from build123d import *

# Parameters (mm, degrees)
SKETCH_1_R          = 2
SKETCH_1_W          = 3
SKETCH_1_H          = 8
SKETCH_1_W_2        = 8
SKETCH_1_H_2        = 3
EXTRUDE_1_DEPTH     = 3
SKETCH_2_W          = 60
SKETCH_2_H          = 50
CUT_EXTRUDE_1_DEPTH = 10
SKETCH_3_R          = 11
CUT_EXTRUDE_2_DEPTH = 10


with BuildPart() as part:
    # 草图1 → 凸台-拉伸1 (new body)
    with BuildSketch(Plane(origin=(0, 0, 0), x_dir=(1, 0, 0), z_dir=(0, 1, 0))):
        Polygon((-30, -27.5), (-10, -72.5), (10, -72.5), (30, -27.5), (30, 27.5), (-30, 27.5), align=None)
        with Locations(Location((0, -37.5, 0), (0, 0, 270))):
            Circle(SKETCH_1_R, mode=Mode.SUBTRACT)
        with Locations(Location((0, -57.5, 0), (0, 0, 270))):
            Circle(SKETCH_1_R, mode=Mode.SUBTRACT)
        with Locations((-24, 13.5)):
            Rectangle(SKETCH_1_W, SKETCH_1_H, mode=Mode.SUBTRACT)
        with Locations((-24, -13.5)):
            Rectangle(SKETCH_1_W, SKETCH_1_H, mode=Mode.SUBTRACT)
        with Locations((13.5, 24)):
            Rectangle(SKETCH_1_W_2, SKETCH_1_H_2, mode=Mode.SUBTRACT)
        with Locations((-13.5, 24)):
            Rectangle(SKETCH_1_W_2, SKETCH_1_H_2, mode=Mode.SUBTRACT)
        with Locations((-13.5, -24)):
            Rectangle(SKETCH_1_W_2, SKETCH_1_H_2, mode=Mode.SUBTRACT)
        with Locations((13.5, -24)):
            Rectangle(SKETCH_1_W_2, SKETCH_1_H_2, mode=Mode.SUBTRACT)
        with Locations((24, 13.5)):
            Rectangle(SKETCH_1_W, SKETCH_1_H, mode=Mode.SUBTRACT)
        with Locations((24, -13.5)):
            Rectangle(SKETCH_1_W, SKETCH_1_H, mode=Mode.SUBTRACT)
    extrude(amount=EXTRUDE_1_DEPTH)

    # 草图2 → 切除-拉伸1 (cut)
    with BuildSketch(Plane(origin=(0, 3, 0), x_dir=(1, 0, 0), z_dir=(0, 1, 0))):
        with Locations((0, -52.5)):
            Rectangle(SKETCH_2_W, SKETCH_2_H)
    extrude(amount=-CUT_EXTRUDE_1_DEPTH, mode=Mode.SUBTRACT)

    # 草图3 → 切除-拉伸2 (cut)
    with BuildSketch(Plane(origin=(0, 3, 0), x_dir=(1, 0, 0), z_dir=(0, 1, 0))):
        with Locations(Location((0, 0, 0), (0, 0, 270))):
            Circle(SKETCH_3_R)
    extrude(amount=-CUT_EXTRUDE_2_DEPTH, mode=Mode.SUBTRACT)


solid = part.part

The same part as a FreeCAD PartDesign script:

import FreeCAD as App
import Part
import Sketcher
Q = App.Units.Quantity


def add_polygon(sketch, points):
    """Adds a closed chain of lines whose ends are joined by coincident constraints."""
    first, n = sketch.GeometryCount, len(points)
    for a, b in zip(points, points[1:] + points[:1]):
        sketch.addGeometry(Part.LineSegment(App.Vector(*a, 0), App.Vector(*b, 0)), False)
    for i in range(n):
        sketch.addConstraint(Sketcher.Constraint("Coincident", first + i, 2, first + (i + 1) % n, 1))

doc = App.newDocument("Part")
body = doc.addObject("PartDesign::Body", "Body")

sketch1 = doc.addObject("Sketcher::SketchObject", "Sketch")
body.addObject(sketch1)
sketch1.AttachmentSupport = (doc.XZ_Plane, [""])
sketch1.MapMode = "FlatFace"
add_polygon(sketch1, [(-30, 27.5), (-10, 72.5), (10, 72.5), (30, 27.5), (30, -27.5), (-30, -27.5)])
add_polygon(sketch1, [(-9.5, 25.5), (-17.5, 25.5), (-17.5, 22.5), (-9.5, 22.5)])
sketch1.addGeometry(Part.Circle(App.Vector(0, 57.5, 0), App.Vector(0, 0, 1), 2), False)
sketch1.addGeometry(Part.Circle(App.Vector(0, 37.5, 0), App.Vector(0, 0, 1), 2), False)
add_polygon(sketch1, [(17.5, 25.5), (9.5, 25.5), (9.5, 22.5), (17.5, 22.5)])
add_polygon(sketch1, [(-22.5, 17.5), (-25.5, 17.5), (-25.5, 9.5), (-22.5, 9.5)])
add_polygon(sketch1, [(-22.5, -9.5), (-25.5, -9.5), (-25.5, -17.5), (-22.5, -17.5)])
add_polygon(sketch1, [(-9.5, -22.5), (-17.5, -22.5), (-17.5, -25.5), (-9.5, -25.5)])
add_polygon(sketch1, [(25.5, 17.5), (22.5, 17.5), (22.5, 9.5), (25.5, 9.5)])
add_polygon(sketch1, [(25.5, -9.5), (22.5, -9.5), (22.5, -17.5), (25.5, -17.5)])
add_polygon(sketch1, [(17.5, -22.5), (9.5, -22.5), (9.5, -25.5), (17.5, -25.5)])
sketch1.addConstraint([
    Sketcher.Constraint("Horizontal", 1),
    Sketcher.Constraint("Vertical", 3),
    Sketcher.Constraint("Horizontal", 4),
    Sketcher.Constraint("Vertical", 5),
    Sketcher.Constraint("Horizontal", 6),
    Sketcher.Constraint("Vertical", 7),
    Sketcher.Constraint("Horizontal", 8),
    Sketcher.Constraint("Vertical", 9),
    Sketcher.Constraint("Horizontal", 12),
    Sketcher.Constraint("Vertical", 13),
    Sketcher.Constraint("Horizontal", 14),
    Sketcher.Constraint("Vertical", 15),
    Sketcher.Constraint("Horizontal", 16),
    Sketcher.Constraint("Vertical", 17),
    Sketcher.Constraint("Horizontal", 18),
    Sketcher.Constraint("Vertical", 19),
    Sketcher.Constraint("Horizontal", 20),
    Sketcher.Constraint("Vertical", 21),
    Sketcher.Constraint("Horizontal", 22),
    Sketcher.Constraint("Vertical", 23),
    Sketcher.Constraint("Horizontal", 24),
    Sketcher.Constraint("Vertical", 25),
    Sketcher.Constraint("Horizontal", 26),
    Sketcher.Constraint("Vertical", 27),
    Sketcher.Constraint("Horizontal", 28),
    Sketcher.Constraint("Vertical", 29),
    Sketcher.Constraint("Horizontal", 30),
    Sketcher.Constraint("Vertical", 31),
    Sketcher.Constraint("Horizontal", 32),
    Sketcher.Constraint("Vertical", 33),
    Sketcher.Constraint("Horizontal", 34),
    Sketcher.Constraint("Vertical", 35),
    Sketcher.Constraint("Horizontal", 36),
    Sketcher.Constraint("Vertical", 37),
    Sketcher.Constraint("Horizontal", 38),
    Sketcher.Constraint("Vertical", 39),
    Sketcher.Constraint("Equal", 10, 11),
    Sketcher.Constraint("Symmetric", 2, 2, 4, 2, -1, 1),
    Sketcher.Constraint("Symmetric", 14, 2, 24, 2, -1, 1),
    Sketcher.Constraint("Symmetric", 12, 2, 26, 2, -1, 1),
    Sketcher.Constraint("Symmetric", 22, 2, 28, 2, -1, 1),
    Sketcher.Constraint("Symmetric", 20, 2, 30, 2, -1, 1),
    Sketcher.Constraint("Symmetric", 18, 2, 32, 2, -1, 1),
    Sketcher.Constraint("Symmetric", 16, 2, 34, 2, -1, 1),
    Sketcher.Constraint("Symmetric", 8, 2, 36, 2, -1, 1),
    Sketcher.Constraint("Symmetric", 6, 2, 38, 2, -1, 1),
    Sketcher.Constraint("Symmetric", 9, 2, 12, 2, -2),
    Sketcher.Constraint("Symmetric", 7, 2, 14, 2, -2),
    Sketcher.Constraint("Symmetric", 19, 2, 28, 2, -2),
    Sketcher.Constraint("Symmetric", 17, 2, 30, 2, -2),
    Sketcher.Constraint("PointOnObject", 10, 3, -2),
    Sketcher.Constraint("PointOnObject", 11, 3, -2),
    Sketcher.Constraint("Horizontal", 2, 2, 5, 2),
    Sketcher.Constraint("Equal", 34, 7),
    Sketcher.Constraint("Equal", 38, 17),
    Sketcher.Constraint("Equal", 0, 2),
    Sketcher.Constraint("Diameter", 10, Q("4 mm")),
    Sketcher.Constraint("DistanceX", 1, 1, 1, 2, Q("20 mm")),
    Sketcher.Constraint("DistanceX", 4, 2, 4, 1, Q("60 mm")),
    Sketcher.Constraint("DistanceX", 6, 2, 6, 1, Q("8 mm")),
    Sketcher.Constraint("DistanceX", 16, 2, 16, 1, Q("3 mm")),
    Sketcher.Constraint("DistanceY", 3, 2, 3, 1, Q("55 mm")),
    Sketcher.Constraint("DistanceY", 11, 3, 10, 3, Q("20 mm")),
    Sketcher.Constraint("DistanceY", 10, 3, 0, 2, Q("15 mm")),
    Sketcher.Constraint("DistanceY", 2, 2, 11, 3, Q("10 mm")),
    Sketcher.Constraint("DistanceY", 6, 2, 5, 2, Q("2 mm")),
    Sketcher.Constraint("DistanceX", 9, 2, 12, 2, Q("19 mm")),
    Sketcher.Constraint("DistanceX", 16, 2, 7, 2, Q("8 mm")),
    Sketcher.Constraint("DistanceY", 16, 2, 7, 2, Q("5 mm")),
])
pad1 = doc.addObject("PartDesign::Pad", "Pad")
body.addObject(pad1)
pad1.Profile = sketch1
pad1.Length = 3
pad1.Reversed = True

sketch2 = doc.addObject("Sketcher::SketchObject", "Sketch001")
body.addObject(sketch2)
sketch2.AttachmentSupport = (doc.XZ_Plane, [""])
sketch2.MapMode = "FlatFace"
sketch2.AttachmentOffset = App.Placement(App.Vector(0, 0, -3), App.Rotation())
add_polygon(sketch2, [(-30, 28), (-30, 78), (30, 78), (30, 28)])
sketch2.addConstraint([
    Sketcher.Constraint("Vertical", 0),
    Sketcher.Constraint("Horizontal", 1),
    Sketcher.Constraint("Vertical", 2),
    Sketcher.Constraint("Horizontal", 3),
    Sketcher.Constraint("DistanceX", 1, 1, 1, 2, Q("60 mm")),
    Sketcher.Constraint("DistanceY", 0, 1, 0, 2, Q("50 mm")),
    Sketcher.Constraint("DistanceX", 0, 2, -1, 1, Q("30 mm")),
    Sketcher.Constraint("DistanceY", -1, 1, 0, 2, Q("77.5 mm")),
])
pocket1 = doc.addObject("PartDesign::Pocket", "Pocket")
body.addObject(pocket1)
pocket1.Profile = sketch2
pocket1.Length = 10
pocket1.Reversed = True

sketch3 = doc.addObject("Sketcher::SketchObject", "Sketch002")
body.addObject(sketch3)
sketch3.AttachmentSupport = (doc.XZ_Plane, [""])
sketch3.MapMode = "FlatFace"
sketch3.AttachmentOffset = App.Placement(App.Vector(0, 0, -3), App.Rotation())
sketch3.addGeometry(Part.Circle(App.Vector(0, 0, 0), App.Vector(0, 0, 1), 11), False)
sketch3.addConstraint([
    Sketcher.Constraint("Coincident", 0, 3, -1, 1),
    Sketcher.Constraint("Diameter", 0, Q("22 mm")),
])
pocket2 = doc.addObject("PartDesign::Pocket", "Pocket001")
body.addObject(pocket2)
pocket2.Profile = sketch3
pocket2.Length = 10
pocket2.Reversed = True

doc.recompute()
